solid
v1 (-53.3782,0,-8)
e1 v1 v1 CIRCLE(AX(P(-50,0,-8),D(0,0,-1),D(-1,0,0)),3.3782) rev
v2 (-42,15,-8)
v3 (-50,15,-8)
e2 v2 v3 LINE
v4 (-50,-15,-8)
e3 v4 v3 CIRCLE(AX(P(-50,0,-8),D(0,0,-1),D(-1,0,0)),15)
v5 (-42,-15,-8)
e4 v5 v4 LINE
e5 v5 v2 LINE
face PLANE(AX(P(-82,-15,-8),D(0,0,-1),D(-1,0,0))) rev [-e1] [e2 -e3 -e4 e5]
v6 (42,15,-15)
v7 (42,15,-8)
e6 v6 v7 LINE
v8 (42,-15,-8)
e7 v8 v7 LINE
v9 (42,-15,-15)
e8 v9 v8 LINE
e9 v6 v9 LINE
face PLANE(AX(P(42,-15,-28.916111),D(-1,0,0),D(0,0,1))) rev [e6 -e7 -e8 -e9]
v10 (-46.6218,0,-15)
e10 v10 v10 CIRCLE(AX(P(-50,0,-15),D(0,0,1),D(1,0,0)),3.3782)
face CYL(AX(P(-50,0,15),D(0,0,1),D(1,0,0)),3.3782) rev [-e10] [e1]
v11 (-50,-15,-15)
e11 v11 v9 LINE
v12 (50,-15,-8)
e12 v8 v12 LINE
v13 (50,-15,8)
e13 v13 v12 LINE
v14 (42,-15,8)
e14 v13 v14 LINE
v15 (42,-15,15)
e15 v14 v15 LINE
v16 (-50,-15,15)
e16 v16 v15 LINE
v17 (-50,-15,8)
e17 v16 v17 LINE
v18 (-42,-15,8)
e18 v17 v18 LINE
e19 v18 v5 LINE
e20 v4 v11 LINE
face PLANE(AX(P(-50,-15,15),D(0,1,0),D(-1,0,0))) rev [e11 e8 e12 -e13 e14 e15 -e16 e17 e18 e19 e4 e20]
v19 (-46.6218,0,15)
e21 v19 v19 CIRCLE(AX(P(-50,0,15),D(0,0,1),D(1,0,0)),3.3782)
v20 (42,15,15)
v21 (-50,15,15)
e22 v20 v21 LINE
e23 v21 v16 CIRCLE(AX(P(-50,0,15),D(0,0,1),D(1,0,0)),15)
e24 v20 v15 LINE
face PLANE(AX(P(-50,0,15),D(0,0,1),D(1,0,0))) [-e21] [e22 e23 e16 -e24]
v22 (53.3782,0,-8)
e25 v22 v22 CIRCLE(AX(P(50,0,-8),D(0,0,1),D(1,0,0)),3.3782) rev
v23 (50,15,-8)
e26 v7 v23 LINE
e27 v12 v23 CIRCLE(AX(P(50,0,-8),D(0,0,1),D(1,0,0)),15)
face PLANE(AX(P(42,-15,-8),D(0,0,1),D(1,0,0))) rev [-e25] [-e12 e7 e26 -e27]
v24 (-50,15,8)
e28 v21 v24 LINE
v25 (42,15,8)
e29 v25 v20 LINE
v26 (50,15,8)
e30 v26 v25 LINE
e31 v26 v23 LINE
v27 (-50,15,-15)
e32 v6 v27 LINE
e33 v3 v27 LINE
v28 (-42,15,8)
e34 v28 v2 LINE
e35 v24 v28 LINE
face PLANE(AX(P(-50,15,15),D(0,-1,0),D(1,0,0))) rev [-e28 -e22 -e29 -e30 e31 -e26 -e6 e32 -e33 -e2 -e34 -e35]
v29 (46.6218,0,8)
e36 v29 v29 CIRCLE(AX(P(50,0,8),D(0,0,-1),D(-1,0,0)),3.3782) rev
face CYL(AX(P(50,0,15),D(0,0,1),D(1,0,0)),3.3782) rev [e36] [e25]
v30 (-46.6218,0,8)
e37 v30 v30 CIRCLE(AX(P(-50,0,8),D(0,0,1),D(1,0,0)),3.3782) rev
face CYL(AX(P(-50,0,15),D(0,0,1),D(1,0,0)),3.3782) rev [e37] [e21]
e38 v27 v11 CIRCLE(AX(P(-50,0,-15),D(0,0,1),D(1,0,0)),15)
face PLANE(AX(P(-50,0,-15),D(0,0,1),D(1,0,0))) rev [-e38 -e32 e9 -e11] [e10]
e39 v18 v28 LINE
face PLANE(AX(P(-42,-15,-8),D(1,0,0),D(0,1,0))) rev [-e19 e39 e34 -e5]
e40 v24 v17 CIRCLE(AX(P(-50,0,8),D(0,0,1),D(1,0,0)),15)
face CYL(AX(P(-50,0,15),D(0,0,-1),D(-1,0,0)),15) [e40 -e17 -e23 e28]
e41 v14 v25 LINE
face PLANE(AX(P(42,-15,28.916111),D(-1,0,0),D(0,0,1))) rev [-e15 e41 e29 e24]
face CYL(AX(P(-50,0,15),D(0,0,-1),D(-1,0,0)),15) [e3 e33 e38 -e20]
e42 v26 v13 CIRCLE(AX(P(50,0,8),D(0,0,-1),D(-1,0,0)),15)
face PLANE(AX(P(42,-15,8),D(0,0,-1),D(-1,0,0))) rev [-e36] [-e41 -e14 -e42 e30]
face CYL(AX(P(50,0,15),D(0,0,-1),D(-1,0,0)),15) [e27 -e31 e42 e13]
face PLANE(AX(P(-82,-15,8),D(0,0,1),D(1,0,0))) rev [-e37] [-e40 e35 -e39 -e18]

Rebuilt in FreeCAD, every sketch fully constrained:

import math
import FreeCAD as App
import Part
import Sketcher
from FreeCAD import Vector
Q = App.Units.Quantity

doc = App.newDocument("Part")
params = doc.addObject("Spreadsheet::Sheet", "Params")
for row, (alias, value) in enumerate([
    ("sketch1_radius", "15 mm"),
    ("sketch1_width", "100 mm"),
    ("pad1_length", "30 mm"),
    ("hole_diameter", "6.7564 mm"),
    ("sketch3_width", "40 mm"),
    ("sketch3_height", "16 mm"),
], start=1):
    params.set(f"A{row}", alias)
    params.set(f"B{row}", "=" + value)
    params.setAlias(f"B{row}", alias)

body = doc.addObject("PartDesign::Body", "Body")

# Sketch on XY plane
sketch1 = body.newObject("Sketcher::SketchObject", "Sketch")
sketch1.AttachmentSupport = (doc.getObject("XY_Plane"), [""])
sketch1.MapMode = "FlatFace"
sketch1.addGeometry([
    Part.LineSegment(Vector(50, 15, 0), Vector(-50, 15, 0)),
    Part.ArcOfCircle(Part.Circle(Vector(-50, 0, 0), Vector(0, 0, 1), 15), math.radians(90), math.radians(270)),
    Part.LineSegment(Vector(-50, -15, 0), Vector(50, -15, 0)),
    Part.ArcOfCircle(Part.Circle(Vector(50, 0, 0), Vector(0, 0, 1), 15), math.radians(-90), math.radians(90)),
], False)
sketch1.addConstraint([
    Sketcher.Constraint("Tangent", 0, 2, 1, 1),
    Sketcher.Constraint("Tangent", 1, 2, 2, 1),
    Sketcher.Constraint("Tangent", 2, 2, 3, 1),
    Sketcher.Constraint("Tangent", 3, 2, 0, 1),
    Sketcher.Constraint("Horizontal", 0),
    Sketcher.Constraint("Horizontal", 2),
    Sketcher.Constraint("Symmetric", 1, 3, 3, 3, -1, 1),
    Sketcher.Constraint("Radius", 1, Q("15 mm")),
    Sketcher.Constraint("DistanceX", 0, 2, 0, 1, Q("100 mm")),
])
sketch1.setExpression("Constraints[7]", "Params.sketch1_radius")
sketch1.setExpression("Constraints[8]", "Params.sketch1_width")
pad1 = body.newObject("PartDesign::Pad", "Pad")
pad1.Profile = sketch1
pad1.setExpression("Length", "Params.pad1_length")
pad1.Midplane = True

# Sketch on XY plane
sketch2 = body.newObject("Sketcher::SketchObject", "Sketch001")
sketch2.AttachmentSupport = (doc.getObject("XY_Plane"), [""])
sketch2.MapMode = "FlatFace"
sketch2.AttachmentOffset = App.Placement(Vector(0, 0, 15), App.Rotation())
sketch2.addGeometry([
    Part.Circle(Vector(-50, 0, 0), Vector(0, 0, 1), 3.4),
    Part.Circle(Vector(50, 0, 0), Vector(0, 0, 1), 3.4),
], False)
sketch2.addConstraint([
    Sketcher.Constraint("Equal", 0, 1),
    Sketcher.Constraint("Symmetric", 0, 3, 1, 3, -1, 1),
    Sketcher.Constraint("PointOnObject", 0, 3, -1),
    Sketcher.Constraint("DistanceX", 0, 3, -1, 1, Q("50 mm")),
    Sketcher.Constraint("Diameter", 0, Q("6.7564 mm")),
])
doc.recompute()
hole = body.newObject("PartDesign::Hole", "Hole")
hole.Profile = sketch2
hole.ThreadType = "None"
hole.setExpression("Diameter", "Params.hole_diameter")
hole.DepthType = "ThroughAll"

# Sketch on XZ plane
sketch3 = body.newObject("Sketcher::SketchObject", "Sketch002")
sketch3.AttachmentSupport = (doc.getObject("XZ_Plane"), [""])
sketch3.MapMode = "FlatFace"
sketch3.AttachmentOffset = App.Placement(Vector(0, 0, -15), App.Rotation())
sketch3.addGeometry([
    Part.LineSegment(Vector(-82, -8, 0), Vector(-82, 8, 0)),  # 0
    Part.LineSegment(Vector(-82, 8, 0), Vector(-42, 8, 0)),  # 1
    Part.LineSegment(Vector(-42, 8, 0), Vector(-42, -8, 0)),  # 2
    Part.LineSegment(Vector(-42, -8, 0), Vector(-82, -8, 0)),  # 3
    Part.LineSegment(Vector(42, -29, 0), Vector(42, -8, 0)),  # 4
    Part.LineSegment(Vector(42, -8, 0), Vector(82, -8, 0)),  # 5
    Part.LineSegment(Vector(82, -8, 0), Vector(82, -29, 0)),  # 6
    Part.LineSegment(Vector(82, -29, 0), Vector(42, -29, 0)),  # 7
    Part.LineSegment(Vector(42, 8, 0), Vector(42, 29, 0)),  # 8
    Part.LineSegment(Vector(42, 29, 0), Vector(82, 29, 0)),  # 9
    Part.LineSegment(Vector(82, 29, 0), Vector(82, 8, 0)),  # 10
    Part.LineSegment(Vector(82, 8, 0), Vector(42, 8, 0)),  # 11
], False)
sketch3.addConstraint([
    Sketcher.Constraint("Coincident", 0, 2, 1, 1),
    Sketcher.Constraint("Coincident", 1, 2, 2, 1),
    Sketcher.Constraint("Coincident", 2, 2, 3, 1),
    Sketcher.Constraint("Coincident", 3, 2, 0, 1),
    Sketcher.Constraint("Coincident", 4, 2, 5, 1),
    Sketcher.Constraint("Coincident", 5, 2, 6, 1),
    Sketcher.Constraint("Coincident", 6, 2, 7, 1),
    Sketcher.Constraint("Coincident", 7, 2, 4, 1),
    Sketcher.Constraint("Coincident", 8, 2, 9, 1),
    Sketcher.Constraint("Coincident", 9, 2, 10, 1),
    Sketcher.Constraint("Coincident", 10, 2, 11, 1),
    Sketcher.Constraint("Coincident", 11, 2, 8, 1),
    Sketcher.Constraint("Vertical", 0),
    Sketcher.Constraint("Horizontal", 1),
    Sketcher.Constraint("Vertical", 2),
    Sketcher.Constraint("Horizontal", 3),
    Sketcher.Constraint("Vertical", 4),
    Sketcher.Constraint("Horizontal", 5),
    Sketcher.Constraint("Vertical", 6),
    Sketcher.Constraint("Horizontal", 7),
    Sketcher.Constraint("Vertical", 8),
    Sketcher.Constraint("Horizontal", 9),
    Sketcher.Constraint("Vertical", 10),
    Sketcher.Constraint("Horizontal", 11),
    Sketcher.Constraint("Symmetric", 1, 2, 4, 2, -1, 1),
    Sketcher.Constraint("Symmetric", 3, 2, 10, 2, -1, 1),
    Sketcher.Constraint("Symmetric", 3, 2, 5, 2, -2),
    Sketcher.Constraint("Symmetric", 7, 2, 8, 2, -1),
    Sketcher.Constraint("DistanceX", 1, 1, 1, 2, Q("40 mm")),
    Sketcher.Constraint("DistanceY", 0, 1, 0, 2, Q("16 mm")),
    Sketcher.Constraint("DistanceX", 0, 2, -1, 1, Q("82 mm")),
    Sketcher.Constraint("DistanceY", 4, 1, 4, 2, Q("20.916111 mm")),
])
sketch3.setExpression("Constraints[28]", "Params.sketch3_width")
sketch3.setExpression("Constraints[29]", "Params.sketch3_height")
pocket1 = body.newObject("PartDesign::Pocket", "Pocket")
pocket1.Profile = sketch3
pocket1.Type = "ThroughAll"
pocket1.Reversed = True

doc.recompute()
